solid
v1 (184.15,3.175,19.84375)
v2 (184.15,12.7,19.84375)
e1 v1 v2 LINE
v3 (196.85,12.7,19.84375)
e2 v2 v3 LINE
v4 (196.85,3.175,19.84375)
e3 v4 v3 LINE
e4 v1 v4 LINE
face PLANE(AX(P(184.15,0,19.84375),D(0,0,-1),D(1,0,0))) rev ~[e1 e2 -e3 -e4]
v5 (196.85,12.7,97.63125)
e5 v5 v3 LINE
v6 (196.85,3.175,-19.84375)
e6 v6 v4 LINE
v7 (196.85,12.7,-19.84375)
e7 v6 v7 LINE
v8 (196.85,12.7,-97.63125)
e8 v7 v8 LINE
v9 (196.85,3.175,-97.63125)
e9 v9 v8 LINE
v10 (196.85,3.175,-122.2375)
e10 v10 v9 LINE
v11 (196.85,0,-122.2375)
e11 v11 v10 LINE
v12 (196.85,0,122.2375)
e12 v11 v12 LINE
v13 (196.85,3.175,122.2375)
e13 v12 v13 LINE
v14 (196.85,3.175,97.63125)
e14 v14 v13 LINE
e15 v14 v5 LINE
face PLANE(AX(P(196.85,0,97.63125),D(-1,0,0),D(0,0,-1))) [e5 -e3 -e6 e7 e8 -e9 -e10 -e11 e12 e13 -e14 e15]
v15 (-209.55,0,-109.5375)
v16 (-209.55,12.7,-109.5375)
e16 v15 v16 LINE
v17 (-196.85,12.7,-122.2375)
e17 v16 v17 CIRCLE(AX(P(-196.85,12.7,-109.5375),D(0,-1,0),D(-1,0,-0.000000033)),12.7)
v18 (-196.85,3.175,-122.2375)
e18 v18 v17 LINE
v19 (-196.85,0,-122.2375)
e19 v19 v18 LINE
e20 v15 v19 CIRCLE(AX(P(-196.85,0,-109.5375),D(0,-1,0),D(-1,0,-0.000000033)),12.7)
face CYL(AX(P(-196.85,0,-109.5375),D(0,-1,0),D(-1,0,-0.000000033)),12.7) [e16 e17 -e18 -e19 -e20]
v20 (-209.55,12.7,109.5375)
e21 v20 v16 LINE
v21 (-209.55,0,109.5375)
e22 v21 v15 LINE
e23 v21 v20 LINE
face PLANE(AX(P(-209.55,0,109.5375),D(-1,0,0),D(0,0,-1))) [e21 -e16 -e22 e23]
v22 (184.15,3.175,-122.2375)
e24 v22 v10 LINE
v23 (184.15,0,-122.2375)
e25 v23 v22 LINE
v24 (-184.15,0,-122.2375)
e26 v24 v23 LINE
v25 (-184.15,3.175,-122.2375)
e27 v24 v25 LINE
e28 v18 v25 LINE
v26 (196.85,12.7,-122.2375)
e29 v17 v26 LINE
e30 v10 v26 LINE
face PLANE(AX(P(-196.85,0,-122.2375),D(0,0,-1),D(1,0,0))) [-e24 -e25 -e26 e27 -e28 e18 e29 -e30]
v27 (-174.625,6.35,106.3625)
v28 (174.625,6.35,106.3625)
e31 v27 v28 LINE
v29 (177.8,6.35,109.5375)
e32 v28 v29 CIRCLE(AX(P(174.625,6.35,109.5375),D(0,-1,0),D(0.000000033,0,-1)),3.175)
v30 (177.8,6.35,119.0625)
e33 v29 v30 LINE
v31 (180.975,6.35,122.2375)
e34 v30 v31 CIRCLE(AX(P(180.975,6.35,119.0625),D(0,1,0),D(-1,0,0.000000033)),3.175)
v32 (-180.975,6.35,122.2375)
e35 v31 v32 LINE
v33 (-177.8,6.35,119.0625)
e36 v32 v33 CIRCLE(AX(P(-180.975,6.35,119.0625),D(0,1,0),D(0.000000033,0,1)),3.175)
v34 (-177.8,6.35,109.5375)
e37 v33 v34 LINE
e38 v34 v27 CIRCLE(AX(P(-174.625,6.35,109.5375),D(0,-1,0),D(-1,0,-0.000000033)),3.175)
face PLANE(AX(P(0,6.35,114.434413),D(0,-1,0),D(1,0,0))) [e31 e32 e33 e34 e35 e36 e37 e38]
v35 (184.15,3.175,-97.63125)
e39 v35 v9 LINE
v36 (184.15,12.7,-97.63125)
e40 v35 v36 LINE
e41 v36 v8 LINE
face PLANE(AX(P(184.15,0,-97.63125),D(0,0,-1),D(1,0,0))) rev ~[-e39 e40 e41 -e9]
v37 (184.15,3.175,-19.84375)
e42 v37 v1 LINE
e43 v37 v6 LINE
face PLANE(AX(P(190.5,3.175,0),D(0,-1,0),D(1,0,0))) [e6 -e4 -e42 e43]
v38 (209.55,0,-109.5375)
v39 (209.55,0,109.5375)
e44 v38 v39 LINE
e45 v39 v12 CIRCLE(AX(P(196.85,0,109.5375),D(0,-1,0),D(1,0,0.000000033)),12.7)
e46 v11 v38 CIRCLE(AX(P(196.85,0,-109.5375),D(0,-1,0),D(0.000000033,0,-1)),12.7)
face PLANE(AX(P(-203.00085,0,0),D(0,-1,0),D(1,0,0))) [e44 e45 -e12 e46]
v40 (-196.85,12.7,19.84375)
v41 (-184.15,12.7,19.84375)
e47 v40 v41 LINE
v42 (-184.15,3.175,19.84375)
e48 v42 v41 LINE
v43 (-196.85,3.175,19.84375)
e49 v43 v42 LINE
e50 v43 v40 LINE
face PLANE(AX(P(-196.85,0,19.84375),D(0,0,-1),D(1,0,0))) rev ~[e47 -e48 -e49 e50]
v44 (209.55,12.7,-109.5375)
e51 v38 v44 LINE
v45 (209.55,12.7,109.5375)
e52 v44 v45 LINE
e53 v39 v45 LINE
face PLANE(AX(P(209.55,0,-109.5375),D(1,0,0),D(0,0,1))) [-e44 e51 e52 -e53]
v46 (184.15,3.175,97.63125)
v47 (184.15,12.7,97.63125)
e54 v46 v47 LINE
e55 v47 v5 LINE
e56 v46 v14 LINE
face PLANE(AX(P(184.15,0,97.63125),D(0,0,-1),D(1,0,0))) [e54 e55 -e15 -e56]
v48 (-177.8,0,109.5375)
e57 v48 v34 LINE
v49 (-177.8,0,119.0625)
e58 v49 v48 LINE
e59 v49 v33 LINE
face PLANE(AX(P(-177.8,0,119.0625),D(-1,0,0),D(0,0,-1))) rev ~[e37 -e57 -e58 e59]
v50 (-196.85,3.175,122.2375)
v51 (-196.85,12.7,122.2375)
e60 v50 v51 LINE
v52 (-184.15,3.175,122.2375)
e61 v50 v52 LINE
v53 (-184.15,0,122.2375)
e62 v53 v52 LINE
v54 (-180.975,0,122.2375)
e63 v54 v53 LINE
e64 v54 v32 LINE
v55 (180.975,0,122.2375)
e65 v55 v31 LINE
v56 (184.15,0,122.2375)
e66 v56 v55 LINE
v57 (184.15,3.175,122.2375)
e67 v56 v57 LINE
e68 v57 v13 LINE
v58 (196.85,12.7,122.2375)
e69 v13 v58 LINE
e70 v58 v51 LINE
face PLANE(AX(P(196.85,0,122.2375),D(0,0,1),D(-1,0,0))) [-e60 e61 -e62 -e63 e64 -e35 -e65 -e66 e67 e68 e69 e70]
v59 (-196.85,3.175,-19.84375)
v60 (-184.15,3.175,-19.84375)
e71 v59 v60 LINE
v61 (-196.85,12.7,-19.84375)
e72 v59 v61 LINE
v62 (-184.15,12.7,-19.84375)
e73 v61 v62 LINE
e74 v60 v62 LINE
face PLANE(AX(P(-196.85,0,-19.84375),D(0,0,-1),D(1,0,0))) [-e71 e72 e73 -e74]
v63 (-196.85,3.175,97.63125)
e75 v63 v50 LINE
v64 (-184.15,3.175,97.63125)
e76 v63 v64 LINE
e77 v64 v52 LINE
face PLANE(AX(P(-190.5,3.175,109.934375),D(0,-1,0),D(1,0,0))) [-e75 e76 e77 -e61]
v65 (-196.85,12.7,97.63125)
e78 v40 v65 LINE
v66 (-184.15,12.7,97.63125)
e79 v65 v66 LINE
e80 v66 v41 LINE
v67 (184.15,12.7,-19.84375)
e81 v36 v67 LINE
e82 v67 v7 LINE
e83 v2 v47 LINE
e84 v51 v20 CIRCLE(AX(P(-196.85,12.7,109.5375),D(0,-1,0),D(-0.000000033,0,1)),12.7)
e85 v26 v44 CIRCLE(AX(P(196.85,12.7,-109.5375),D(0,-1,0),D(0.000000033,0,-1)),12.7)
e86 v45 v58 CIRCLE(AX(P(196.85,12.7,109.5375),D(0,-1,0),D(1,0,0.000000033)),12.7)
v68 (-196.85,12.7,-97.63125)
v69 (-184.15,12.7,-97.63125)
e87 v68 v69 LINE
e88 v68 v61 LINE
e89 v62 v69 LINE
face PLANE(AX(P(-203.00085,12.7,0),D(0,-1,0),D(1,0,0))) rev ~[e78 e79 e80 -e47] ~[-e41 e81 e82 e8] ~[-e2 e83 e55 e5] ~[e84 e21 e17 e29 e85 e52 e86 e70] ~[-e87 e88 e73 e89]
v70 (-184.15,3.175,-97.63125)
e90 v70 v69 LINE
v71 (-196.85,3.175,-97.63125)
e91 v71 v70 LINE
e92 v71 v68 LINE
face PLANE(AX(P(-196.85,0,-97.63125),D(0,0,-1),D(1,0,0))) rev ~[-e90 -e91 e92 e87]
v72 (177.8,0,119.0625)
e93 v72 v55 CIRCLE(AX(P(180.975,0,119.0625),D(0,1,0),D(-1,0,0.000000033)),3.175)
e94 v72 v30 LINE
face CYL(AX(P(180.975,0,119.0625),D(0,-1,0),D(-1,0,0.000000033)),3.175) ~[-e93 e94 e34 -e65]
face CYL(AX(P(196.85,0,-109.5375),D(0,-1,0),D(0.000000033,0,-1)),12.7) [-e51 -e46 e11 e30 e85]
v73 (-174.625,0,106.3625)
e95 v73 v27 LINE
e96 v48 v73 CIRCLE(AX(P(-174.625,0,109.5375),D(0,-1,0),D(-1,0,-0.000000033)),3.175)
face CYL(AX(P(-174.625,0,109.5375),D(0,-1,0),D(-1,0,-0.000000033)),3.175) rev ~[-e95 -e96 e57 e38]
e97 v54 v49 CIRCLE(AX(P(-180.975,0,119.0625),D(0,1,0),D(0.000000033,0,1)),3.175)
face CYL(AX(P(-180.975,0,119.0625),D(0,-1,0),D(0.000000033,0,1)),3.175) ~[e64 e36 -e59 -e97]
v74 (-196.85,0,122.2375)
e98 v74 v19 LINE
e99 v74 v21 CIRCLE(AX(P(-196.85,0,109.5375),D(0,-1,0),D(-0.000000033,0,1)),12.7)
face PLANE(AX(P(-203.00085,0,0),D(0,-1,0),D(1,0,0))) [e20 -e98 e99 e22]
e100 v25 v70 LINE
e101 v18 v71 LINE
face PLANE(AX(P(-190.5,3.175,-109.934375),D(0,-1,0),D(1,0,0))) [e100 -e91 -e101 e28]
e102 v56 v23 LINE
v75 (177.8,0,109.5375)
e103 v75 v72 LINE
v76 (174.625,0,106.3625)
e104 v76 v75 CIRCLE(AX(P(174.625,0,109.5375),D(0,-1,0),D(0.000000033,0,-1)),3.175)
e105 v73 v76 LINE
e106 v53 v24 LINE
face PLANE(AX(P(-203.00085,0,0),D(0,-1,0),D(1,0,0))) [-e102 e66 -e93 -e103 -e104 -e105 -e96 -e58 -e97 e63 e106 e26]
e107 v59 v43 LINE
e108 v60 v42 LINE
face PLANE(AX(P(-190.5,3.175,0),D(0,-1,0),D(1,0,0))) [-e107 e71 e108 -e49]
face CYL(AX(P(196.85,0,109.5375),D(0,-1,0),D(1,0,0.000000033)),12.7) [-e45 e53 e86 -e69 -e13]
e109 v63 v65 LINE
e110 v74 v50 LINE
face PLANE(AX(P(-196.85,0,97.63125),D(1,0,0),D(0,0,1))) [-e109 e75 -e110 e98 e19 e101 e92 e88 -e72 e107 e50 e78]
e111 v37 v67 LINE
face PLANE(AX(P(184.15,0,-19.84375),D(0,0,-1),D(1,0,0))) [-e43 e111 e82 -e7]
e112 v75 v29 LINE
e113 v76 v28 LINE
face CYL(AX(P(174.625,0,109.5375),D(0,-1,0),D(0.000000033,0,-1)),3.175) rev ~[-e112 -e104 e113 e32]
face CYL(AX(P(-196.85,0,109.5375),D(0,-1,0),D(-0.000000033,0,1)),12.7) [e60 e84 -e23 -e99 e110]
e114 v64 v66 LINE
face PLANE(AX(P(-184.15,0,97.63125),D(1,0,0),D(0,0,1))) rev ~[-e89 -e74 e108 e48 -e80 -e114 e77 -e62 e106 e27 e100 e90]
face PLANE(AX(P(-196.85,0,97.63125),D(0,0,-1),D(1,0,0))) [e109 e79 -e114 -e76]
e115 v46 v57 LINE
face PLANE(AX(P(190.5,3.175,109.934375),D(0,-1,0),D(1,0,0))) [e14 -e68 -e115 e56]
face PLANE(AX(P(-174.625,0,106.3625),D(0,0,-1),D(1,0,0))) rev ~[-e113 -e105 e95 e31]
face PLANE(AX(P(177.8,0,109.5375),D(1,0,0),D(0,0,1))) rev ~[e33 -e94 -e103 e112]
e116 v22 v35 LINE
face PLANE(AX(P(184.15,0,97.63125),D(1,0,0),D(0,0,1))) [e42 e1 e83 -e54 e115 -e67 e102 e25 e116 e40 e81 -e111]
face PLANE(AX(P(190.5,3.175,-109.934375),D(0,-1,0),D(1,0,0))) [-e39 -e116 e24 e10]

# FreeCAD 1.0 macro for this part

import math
import FreeCAD as App
import Part
import Sketcher
Q = App.Units.Quantity


def add_polygon(sketch, points):
    """Adds a closed chain of lines whose ends are joined by coincident constraints."""
    first, n = sketch.GeometryCount, len(points)
    for a, b in zip(points, points[1:] + points[:1]):
        sketch.addGeometry(Part.LineSegment(App.Vector(*a, 0), App.Vector(*b, 0)), False)
    for i in range(n):
        sketch.addConstraint(Sketcher.Constraint("Coincident", first + i, 2, first + (i + 1) % n, 1))

doc = App.newDocument("Part")
params = doc.addObject("Spreadsheet::Sheet", "Params")
for row, (alias, value) in enumerate([
    ("sketch1_radius", "0.5 in"),
    ("sketch1_width", "15.5 in"),
    ("sketch1_width2", "0.5 in"),
    ("sketch1_height", "8.625 in"),
    ("sketch1_height2", "3.0625 in"),
    ("pad1_length", "0.5 in"),
    ("sketch2_width", "0.5 in"),
    ("sketch2_height", "0.96875 in"),
    ("sketch2_height2", "1.5625 in"),
    ("pocket1_length", "0.125 in"),
    ("sketch3_radius", "0.125 in"),
    ("pocket2_length", "0.25 in"),
], start=1):
    params.set(f"A{row}", alias)
    params.set(f"B{row}", "=" + value)
    params.setAlias(f"B{row}", alias)

body = doc.addObject("PartDesign::Body", "Body")

sketch1 = doc.addObject("Sketcher::SketchObject", "Sketch")
body.addObject(sketch1)
sketch1.AttachmentSupport = (doc.XZ_Plane, [""])
sketch1.MapMode = "FlatFace"
sketch1.addGeometry(Part.ArcOfCircle(Part.Circle(App.Vector(-197, 110, 0), App.Vector(0, 0, 1), 13), math.radians(90), math.radians(180)), False)
sketch1.addGeometry(Part.LineSegment(App.Vector(-210, 110, 0), App.Vector(-210, -110, 0)), False)
sketch1.addGeometry(Part.ArcOfCircle(Part.Circle(App.Vector(-197, -110, 0), App.Vector(0, 0, 1), 13), math.radians(-180), math.radians(-90)), False)
sketch1.addGeometry(Part.LineSegment(App.Vector(-197, -122, 0), App.Vector(197, -122, 0)), False)
sketch1.addGeometry(Part.ArcOfCircle(Part.Circle(App.Vector(197, -110, 0), App.Vector(0, 0, 1), 13), math.radians(-90), math.radians(0)), False)
sketch1.addGeometry(Part.LineSegment(App.Vector(210, -110, 0), App.Vector(210, 110, 0)), False)
sketch1.addGeometry(Part.ArcOfCircle(Part.Circle(App.Vector(197, 110, 0), App.Vector(0, 0, 1), 13), math.radians(0), math.radians(90)), False)
sketch1.addGeometry(Part.LineSegment(App.Vector(197, 122, 0), App.Vector(-197, 122, 0)), False)
add_polygon(sketch1, [(197, 98), (197, 20), (184, 20), (184, 98)])
add_polygon(sketch1, [(197, -20), (197, -98), (184, -98), (184, -20)])
add_polygon(sketch1, [(-184, -98), (-197, -98), (-197, -20), (-184, -20)])
add_polygon(sketch1, [(-184, 20), (-197, 20), (-197, 98), (-184, 98)])
sketch1.addConstraint(Sketcher.Constraint("Tangent", 0, 2, 1, 1))
sketch1.addConstraint(Sketcher.Constraint("Tangent", 1, 2, 2, 1))
sketch1.addConstraint(Sketcher.Constraint("Tangent", 2, 2, 3, 1))
sketch1.addConstraint(Sketcher.Constraint("Tangent", 3, 2, 4, 1))
sketch1.addConstraint(Sketcher.Constraint("Tangent", 4, 2, 5, 1))
sketch1.addConstraint(Sketcher.Constraint("Tangent", 5, 2, 6, 1))
sketch1.addConstraint(Sketcher.Constraint("Tangent", 6, 2, 7, 1))
sketch1.addConstraint(Sketcher.Constraint("Tangent", 7, 2, 0, 1))
sketch1.addConstraint(Sketcher.Constraint("Vertical", 1))
sketch1.addConstraint(Sketcher.Constraint("Horizontal", 3))
sketch1.addConstraint(Sketcher.Constraint("Vertical", 5))
sketch1.addConstraint(Sketcher.Constraint("Horizontal", 7))
sketch1.addConstraint(Sketcher.Constraint("Vertical", 8))
sketch1.addConstraint(Sketcher.Constraint("Horizontal", 9))
sketch1.addConstraint(Sketcher.Constraint("Vertical", 10))
sketch1.addConstraint(Sketcher.Constraint("Horizontal", 11))
sketch1.addConstraint(Sketcher.Constraint("Vertical", 12))
sketch1.addConstraint(Sketcher.Constraint("Horizontal", 13))
sketch1.addConstraint(Sketcher.Constraint("Vertical", 14))
sketch1.addConstraint(Sketcher.Constraint("Horizontal", 15))
sketch1.addConstraint(Sketcher.Constraint("Horizontal", 16))
sketch1.addConstraint(Sketcher.Constraint("Vertical", 17))
sketch1.addConstraint(Sketcher.Constraint("Horizontal", 18))
sketch1.addConstraint(Sketcher.Constraint("Vertical", 19))
sketch1.addConstraint(Sketcher.Constraint("Horizontal", 20))
sketch1.addConstraint(Sketcher.Constraint("Vertical", 21))
sketch1.addConstraint(Sketcher.Constraint("Horizontal", 22))
sketch1.addConstraint(Sketcher.Constraint("Vertical", 23))
sketch1.addConstraint(Sketcher.Constraint("Equal", 0, 2))
sketch1.addConstraint(Sketcher.Constraint("Equal", 2, 4))
sketch1.addConstraint(Sketcher.Constraint("Equal", 4, 6))
sketch1.addConstraint(Sketcher.Constraint("Symmetric", 0, 3, 4, 3, -1, 1))
sketch1.addConstraint(Sketcher.Constraint("Symmetric", 11, 2, 16, 2, -1, 1))
sketch1.addConstraint(Sketcher.Constraint("Symmetric", 9, 2, 18, 2, -1, 1))
sketch1.addConstraint(Sketcher.Constraint("Symmetric", 15, 2, 20, 2, -1, 1))
sketch1.addConstraint(Sketcher.Constraint("Symmetric", 13, 2, 22, 2, -1, 1))
sketch1.addConstraint(Sketcher.Constraint("Symmetric", 12, 2, 16, 2, -2))
sketch1.addConstraint(Sketcher.Constraint("Symmetric", 14, 2, 18, 2, -2))
sketch1.addConstraint(Sketcher.Constraint("Vertical", 6, 2, 8, 2))
sketch1.addConstraint(Sketcher.Constraint("Radius", 0, Q("0.5 in")))
sketch1.addConstraint(Sketcher.Constraint("DistanceX", 3, 1, 3, 2, Q("15.5 in")))
sketch1.addConstraint(Sketcher.Constraint("DistanceX", 9, 2, 9, 1, Q("0.5 in")))
sketch1.addConstraint(Sketcher.Constraint("DistanceY", 1, 2, 1, 1, Q("8.625 in")))
sketch1.addConstraint(Sketcher.Constraint("DistanceY", 8, 2, 8, 1, Q("3.0625 in")))
sketch1.addConstraint(Sketcher.Constraint("DistanceY", -1, 1, 8, 2, Q("0.78125 in")))
sketch1.setExpression("Constraints[55]", "Params.sketch1_radius")
sketch1.setExpression("Constraints[56]", "Params.sketch1_width")
sketch1.setExpression("Constraints[57]", "Params.sketch1_width2")
sketch1.setExpression("Constraints[58]", "Params.sketch1_height")
sketch1.setExpression("Constraints[59]", "Params.sketch1_height2")
pad1 = doc.addObject("PartDesign::Pad", "Pad")
body.addObject(pad1)
pad1.Profile = sketch1
pad1.setExpression("Length", "Params.pad1_length")
pad1.Reversed = True

sketch2 = doc.addObject("Sketcher::SketchObject", "Sketch001")
body.addObject(sketch2)
sketch2.AttachmentSupport = (doc.XZ_Plane, [""])
sketch2.MapMode = "FlatFace"
add_polygon(sketch2, [(-197, -98), (-197, -122), (-184, -122), (-184, -98)])
add_polygon(sketch2, [(-197, 20), (-197, -20), (-184, -20), (-184, 20)])
add_polygon(sketch2, [(184, -98), (184, -122), (197, -122), (197, -98)])
add_polygon(sketch2, [(184, 20), (184, -20), (197, -20), (197, 20)])
add_polygon(sketch2, [(184, 122), (184, 98), (197, 98), (197, 122)])
add_polygon(sketch2, [(-197, 122), (-197, 98), (-184, 98), (-184, 122)])
sketch2.addConstraint(Sketcher.Constraint("Vertical", 0))
sketch2.addConstraint(Sketcher.Constraint("Horizontal", 1))
sketch2.addConstraint(Sketcher.Constraint("Vertical", 2))
sketch2.addConstraint(Sketcher.Constraint("Horizontal", 3))
sketch2.addConstraint(Sketcher.Constraint("Vertical", 4))
sketch2.addConstraint(Sketcher.Constraint("Horizontal", 5))
sketch2.addConstraint(Sketcher.Constraint("Vertical", 6))
sketch2.addConstraint(Sketcher.Constraint("Horizontal", 7))
sketch2.addConstraint(Sketcher.Constraint("Vertical", 8))
sketch2.addConstraint(Sketcher.Constraint("Horizontal", 9))
sketch2.addConstraint(Sketcher.Constraint("Vertical", 10))
sketch2.addConstraint(Sketcher.Constraint("Horizontal", 11))
sketch2.addConstraint(Sketcher.Constraint("Vertical", 12))
sketch2.addConstraint(Sketcher.Constraint("Horizontal", 13))
sketch2.addConstraint(Sketcher.Constraint("Vertical", 14))
sketch2.addConstraint(Sketcher.Constraint("Horizontal", 15))
sketch2.addConstraint(Sketcher.Constraint("Vertical", 16))
sketch2.addConstraint(Sketcher.Constraint("Horizontal", 17))
sketch2.addConstraint(Sketcher.Constraint("Vertical", 18))
sketch2.addConstraint(Sketcher.Constraint("Horizontal", 19))
sketch2.addConstraint(Sketcher.Constraint("Vertical", 20))
sketch2.addConstraint(Sketcher.Constraint("Horizontal", 21))
sketch2.addConstraint(Sketcher.Constraint("Vertical", 22))
sketch2.addConstraint(Sketcher.Constraint("Horizontal", 23))
sketch2.addConstraint(Sketcher.Constraint("Symmetric", 6, 2, 12, 2, -1, 1))
sketch2.addConstraint(Sketcher.Constraint("Symmetric", 4, 2, 14, 2, -1, 1))
sketch2.addConstraint(Sketcher.Constraint("Symmetric", 2, 2, 16, 2, -1, 1))
sketch2.addConstraint(Sketcher.Constraint("Symmetric", 0, 2, 18, 2, -1, 1))
sketch2.addConstraint(Sketcher.Constraint("Symmetric", 10, 2, 20, 2, -1, 1))
sketch2.addConstraint(Sketcher.Constraint("Symmetric", 8, 2, 22, 2, -1, 1))
sketch2.addConstraint(Sketcher.Constraint("Symmetric", 1, 2, 8, 2, -2))
sketch2.addConstraint(Sketcher.Constraint("Symmetric", 3, 2, 10, 2, -2))
sketch2.addConstraint(Sketcher.Constraint("Horizontal", 5, 2, 12, 2))
sketch2.addConstraint(Sketcher.Constraint("Vertical", 3, 2, 4, 2))
sketch2.addConstraint(Sketcher.Constraint("Vertical", 2, 2, 5, 2))
sketch2.addConstraint(Sketcher.Constraint("DistanceX", 1, 1, 1, 2, Q("0.5 in")))
sketch2.addConstraint(Sketcher.Constraint("DistanceX", 0, 2, 8, 2, Q("15 in")))
sketch2.addConstraint(Sketcher.Constraint("DistanceY", 0, 2, 0, 1, Q("0.96875 in")))
sketch2.addConstraint(Sketcher.Constraint("DistanceY", 4, 2, 4, 1, Q("1.5625 in")))
sketch2.addConstraint(Sketcher.Constraint("DistanceY", 0, 2, -1, 1, Q("4.8125 in")))
sketch2.setExpression("Constraints[59]", "Params.sketch2_width")
sketch2.setExpression("Constraints[61]", "Params.sketch2_height")
sketch2.setExpression("Constraints[62]", "Params.sketch2_height2")
pocket1 = doc.addObject("PartDesign::Pocket", "Pocket")
body.addObject(pocket1)
pocket1.Profile = sketch2
pocket1.setExpression("Length", "Params.pocket1_length")

sketch3 = doc.addObject("Sketcher::SketchObject", "Sketch002")
body.addObject(sketch3)
sketch3.AttachmentSupport = (doc.XZ_Plane, [""])
sketch3.MapMode = "FlatFace"
sketch3.addGeometry(Part.LineSegment(App.Vector(181, 122.2, 0), App.Vector(-181, 122.2, 0)), False)
sketch3.addGeometry(Part.ArcOfCircle(Part.Circle(App.Vector(-181, 119.1, 0), App.Vector(0, 0, 1), 3.2), math.radians(0), math.radians(90)), False)
sketch3.addGeometry(Part.LineSegment(App.Vector(-177.8, 119.1, 0), App.Vector(-177.8, 109.5, 0)), False)
sketch3.addGeometry(Part.ArcOfCircle(Part.Circle(App.Vector(-174.6, 109.5, 0), App.Vector(0, 0, 1), 3.2), math.radians(-180), math.radians(-90)), False)
sketch3.addGeometry(Part.LineSegment(App.Vector(-174.6, 106.4, 0), App.Vector(174.6, 106.4, 0)), False)
sketch3.addGeometry(Part.ArcOfCircle(Part.Circle(App.Vector(174.6, 109.5, 0), App.Vector(0, 0, 1), 3.2), math.radians(-90), math.radians(0)), False)
sketch3.addGeometry(Part.LineSegment(App.Vector(177.8, 109.5, 0), App.Vector(177.8, 119.1, 0)), False)
sketch3.addGeometry(Part.ArcOfCircle(Part.Circle(App.Vector(181, 119.1, 0), App.Vector(0, 0, 1), 3.2), math.radians(90), math.radians(180)), False)
sketch3.addConstraint(Sketcher.Constraint("Tangent", 0, 2, 1, 2))
sketch3.addConstraint(Sketcher.Constraint("Tangent", 1, 1, 2, 1))
sketch3.addConstraint(Sketcher.Constraint("Tangent", 2, 2, 3, 1))
sketch3.addConstraint(Sketcher.Constraint("Tangent", 3, 2, 4, 1))
sketch3.addConstraint(Sketcher.Constraint("Tangent", 4, 2, 5, 1))
sketch3.addConstraint(Sketcher.Constraint("Tangent", 5, 2, 6, 1))
sketch3.addConstraint(Sketcher.Constraint("Tangent", 6, 2, 7, 2))
sketch3.addConstraint(Sketcher.Constraint("Tangent", 7, 1, 0, 1))
sketch3.addConstraint(Sketcher.Constraint("Horizontal", 0))
sketch3.addConstraint(Sketcher.Constraint("Vertical", 2))
sketch3.addConstraint(Sketcher.Constraint("Horizontal", 4))
sketch3.addConstraint(Sketcher.Constraint("Vertical", 6))
sketch3.addConstraint(Sketcher.Constraint("Equal", 1, 3))
sketch3.addConstraint(Sketcher.Constraint("Equal", 3, 5))
sketch3.addConstraint(Sketcher.Constraint("Equal", 5, 7))
sketch3.addConstraint(Sketcher.Constraint("DistanceX", 1, 1, -1, 1, Q("7 in")))
sketch3.addConstraint(Sketcher.Constraint("DistanceX", -1, 1, 5, 2, Q("7 in")))
sketch3.addConstraint(Sketcher.Constraint("Radius", 1, Q("0.125 in")))
sketch3.addConstraint(Sketcher.Constraint("DistanceY", 3, 3, 0, 2, Q("0.5 in")))
sketch3.addConstraint(Sketcher.Constraint("DistanceY", -1, 1, 1, 3, Q("4.6875 in")))
sketch3.setExpression("Constraints[17]", "Params.sketch3_radius")
pocket2 = doc.addObject("PartDesign::Pocket", "Pocket001")
body.addObject(pocket2)
pocket2.Profile = sketch3
pocket2.setExpression("Length", "Params.pocket2_length")

doc.recompute()
